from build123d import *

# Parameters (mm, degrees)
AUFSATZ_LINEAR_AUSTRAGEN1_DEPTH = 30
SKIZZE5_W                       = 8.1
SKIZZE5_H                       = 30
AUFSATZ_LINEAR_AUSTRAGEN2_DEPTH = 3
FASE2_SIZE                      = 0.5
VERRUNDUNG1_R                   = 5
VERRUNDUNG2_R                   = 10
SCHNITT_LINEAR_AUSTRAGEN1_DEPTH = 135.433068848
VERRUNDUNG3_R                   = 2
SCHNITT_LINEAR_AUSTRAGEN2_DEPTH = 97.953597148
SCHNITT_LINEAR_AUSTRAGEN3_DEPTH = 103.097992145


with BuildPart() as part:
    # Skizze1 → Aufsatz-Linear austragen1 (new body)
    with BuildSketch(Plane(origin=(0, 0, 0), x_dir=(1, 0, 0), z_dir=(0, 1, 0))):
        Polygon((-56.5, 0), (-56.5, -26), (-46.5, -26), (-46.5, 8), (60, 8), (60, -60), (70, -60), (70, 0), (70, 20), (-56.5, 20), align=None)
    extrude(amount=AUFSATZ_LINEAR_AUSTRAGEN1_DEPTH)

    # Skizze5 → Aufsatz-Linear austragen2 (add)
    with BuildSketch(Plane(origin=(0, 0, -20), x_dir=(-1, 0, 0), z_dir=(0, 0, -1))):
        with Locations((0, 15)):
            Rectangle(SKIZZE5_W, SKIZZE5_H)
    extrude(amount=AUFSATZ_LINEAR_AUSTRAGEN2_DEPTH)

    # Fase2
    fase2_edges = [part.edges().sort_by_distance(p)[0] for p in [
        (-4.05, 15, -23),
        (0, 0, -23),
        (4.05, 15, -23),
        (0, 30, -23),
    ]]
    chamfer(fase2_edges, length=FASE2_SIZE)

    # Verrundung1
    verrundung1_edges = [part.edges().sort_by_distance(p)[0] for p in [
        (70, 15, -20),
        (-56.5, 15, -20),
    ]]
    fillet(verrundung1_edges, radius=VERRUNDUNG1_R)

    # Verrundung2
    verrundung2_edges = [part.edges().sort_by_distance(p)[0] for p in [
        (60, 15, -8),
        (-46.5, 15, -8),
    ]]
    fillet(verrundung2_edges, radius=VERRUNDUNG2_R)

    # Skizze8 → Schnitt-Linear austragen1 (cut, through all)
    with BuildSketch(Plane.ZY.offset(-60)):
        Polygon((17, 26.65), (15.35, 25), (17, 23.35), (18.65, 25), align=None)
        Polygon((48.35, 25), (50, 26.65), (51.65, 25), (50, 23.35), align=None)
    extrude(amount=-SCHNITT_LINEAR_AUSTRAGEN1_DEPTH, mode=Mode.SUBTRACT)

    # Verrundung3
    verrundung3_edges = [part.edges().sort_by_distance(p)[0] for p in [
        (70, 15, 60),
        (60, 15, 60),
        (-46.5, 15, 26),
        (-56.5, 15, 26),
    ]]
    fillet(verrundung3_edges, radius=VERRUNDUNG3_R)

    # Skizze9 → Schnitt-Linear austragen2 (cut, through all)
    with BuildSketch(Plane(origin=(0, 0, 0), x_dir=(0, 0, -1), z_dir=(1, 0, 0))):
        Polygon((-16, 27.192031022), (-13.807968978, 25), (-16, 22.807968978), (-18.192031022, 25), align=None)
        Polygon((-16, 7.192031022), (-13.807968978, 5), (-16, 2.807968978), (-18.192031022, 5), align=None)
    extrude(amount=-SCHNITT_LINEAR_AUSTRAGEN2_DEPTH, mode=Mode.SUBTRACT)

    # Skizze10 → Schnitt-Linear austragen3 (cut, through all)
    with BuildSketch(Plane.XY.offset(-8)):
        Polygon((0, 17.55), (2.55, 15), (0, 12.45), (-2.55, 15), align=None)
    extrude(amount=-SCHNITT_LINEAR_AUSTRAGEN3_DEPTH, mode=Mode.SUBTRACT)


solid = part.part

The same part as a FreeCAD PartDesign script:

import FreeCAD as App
import Part
import Sketcher

V = App.Vector
Q = App.Units.Quantity


def edges_at(feature, points):
    """Names of the edges that pass closest to the given points."""
    edges = feature.Shape.Edges
    near = lambda p: min(range(len(edges)), key=lambda i: edges[i].distToShape(Part.Vertex(*p))[0])
    return sorted({f"Edge{near(p) + 1}" for p in points})

doc = App.newDocument("Part")
body = doc.addObject("PartDesign::Body", "Body")

sketch1 = body.newObject("Sketcher::SketchObject", "Sketch")
sketch1.AttachmentSupport = (doc.getObject("XZ_Plane"), [""])
sketch1.MapMode = "FlatFace"
sketch1.addGeometry([
    Part.LineSegment(V(-56, 26, 0), V(-46, 26, 0)),
    Part.LineSegment(V(-46, 26, 0), V(-46, -8, 0)),
    Part.LineSegment(V(-46, -8, 0), V(60, -8, 0)),
    Part.LineSegment(V(60, -8, 0), V(60, 60, 0)),
    Part.LineSegment(V(60, 60, 0), V(70, 60, 0)),
    Part.LineSegment(V(70, 60, 0), V(70, -20, 0)),
    Part.LineSegment(V(70, -20, 0), V(-56, -20, 0)),
    Part.LineSegment(V(-56, -20, 0), V(-56, 26, 0)),
], False)
sketch1.addConstraint([
    Sketcher.Constraint("Coincident", 0, 2, 1, 1),
    Sketcher.Constraint("Coincident", 1, 2, 2, 1),
    Sketcher.Constraint("Coincident", 2, 2, 3, 1),
    Sketcher.Constraint("Coincident", 3, 2, 4, 1),
    Sketcher.Constraint("Coincident", 4, 2, 5, 1),
    Sketcher.Constraint("Coincident", 5, 2, 6, 1),
    Sketcher.Constraint("Coincident", 6, 2, 7, 1),
    Sketcher.Constraint("Coincident", 7, 2, 0, 1),
    Sketcher.Constraint("Horizontal", 0),
    Sketcher.Constraint("Vertical", 1),
    Sketcher.Constraint("Horizontal", 2),
    Sketcher.Constraint("Vertical", 3),
    Sketcher.Constraint("Horizontal", 4),
    Sketcher.Constraint("Vertical", 5),
    Sketcher.Constraint("Horizontal", 6),
    Sketcher.Constraint("Vertical", 7),
    Sketcher.Constraint("Equal", 0, 4),
    Sketcher.Constraint("DistanceX", 0, 1, 0, 2, Q("10 mm")),
    Sketcher.Constraint("DistanceY", 1, 2, 1, 1, Q("34 mm")),
    Sketcher.Constraint("DistanceY", 3, 1, 3, 2, Q("68 mm")),
    Sketcher.Constraint("DistanceY", 5, 2, 5, 1, Q("80 mm")),
    Sketcher.Constraint("DistanceX", 2, 1, 2, 2, Q("106.5 mm")),
    Sketcher.Constraint("DistanceY", -1, 1, 0, 2, Q("26 mm")),
    Sketcher.Constraint("DistanceX", -1, 1, 2, 2, Q("60 mm")),
])
pad1 = body.newObject("PartDesign::Pad", "Pad")
pad1.Profile = sketch1
pad1.Length = 30
pad1.Reversed = True

sketch2 = body.newObject("Sketcher::SketchObject", "Sketch001")
sketch2.AttachmentSupport = (doc.getObject("XY_Plane"), [""])
sketch2.MapMode = "FlatFace"
sketch2.AttachmentOffset = App.Placement(V(0, 0, -20), App.Rotation())
sketch2.addGeometry([
    Part.LineSegment(V(4, 30, 0), V(4, 0, 0)),
    Part.LineSegment(V(4, 0, 0), V(-4, 0, 0)),
    Part.LineSegment(V(-4, 0, 0), V(-4, 30, 0)),
    Part.LineSegment(V(-4, 30, 0), V(4, 30, 0)),
], False)
sketch2.addConstraint([
    Sketcher.Constraint("Coincident", 0, 2, 1, 1),
    Sketcher.Constraint("Coincident", 1, 2, 2, 1),
    Sketcher.Constraint("Coincident", 2, 2, 3, 1),
    Sketcher.Constraint("Coincident", 3, 2, 0, 1),
    Sketcher.Constraint("Vertical", 0),
    Sketcher.Constraint("Horizontal", 1),
    Sketcher.Constraint("Vertical", 2),
    Sketcher.Constraint("Horizontal", 3),
    Sketcher.Constraint("Symmetric", 0, 2, 1, 2, -1, 1),
    Sketcher.Constraint("DistanceY", 0, 2, 0, 1, Q("30 mm")),
    Sketcher.Constraint("DistanceX", 1, 2, 1, 1, Q("8.1 mm")),
])
pad2 = body.newObject("PartDesign::Pad", "Pad001")
pad2.Profile = sketch2
pad2.Length = 3
pad2.Reversed = True
doc.recompute()

chamfer = body.newObject("PartDesign::Chamfer", "Chamfer")
chamfer.Base = (pad2, edges_at(pad2, [
    (-4.05, 15, -23),
    (0, 0, -23),
    (4.05, 15, -23),
    (0, 30, -23),
]))
chamfer.Size = 0.5
doc.recompute()

fillet = body.newObject("PartDesign::Fillet", "Fillet")
fillet.Base = (chamfer, edges_at(chamfer, [(70, 15, -20), (-56.5, 15, -20)]))
fillet.Radius = 5
doc.recompute()

fillet2 = body.newObject("PartDesign::Fillet", "Fillet001")
fillet2.Base = (fillet, edges_at(fillet, [(60, 15, -8), (-46.5, 15, -8)]))
fillet2.Radius = 10

sketch3 = body.newObject("Sketcher::SketchObject", "Sketch002")
sketch3.AttachmentSupport = (doc.getObject("YZ_Plane"), [""])
sketch3.MapMode = "FlatFace"
sketch3.AttachmentOffset = App.Placement(V(0, 0, 60), App.Rotation())
sketch3.addGeometry([
    Part.LineSegment(V(26.6, 17, 0), V(25, 15.3, 0)),
    Part.LineSegment(V(25, 15.3, 0), V(23.4, 17, 0)),
    Part.LineSegment(V(23.4, 17, 0), V(25, 18.6, 0)),
    Part.LineSegment(V(25, 18.6, 0), V(26.6, 17, 0)),
    Part.LineSegment(V(26.6, 50, 0), V(25, 48.4, 0)),
    Part.LineSegment(V(25, 48.4, 0), V(23.4, 50, 0)),
    Part.LineSegment(V(23.4, 50, 0), V(25, 51.6, 0)),
    Part.LineSegment(V(25, 51.6, 0), V(26.6, 50, 0)),
], False)
sketch3.addConstraint([
    Sketcher.Constraint("Coincident", 0, 2, 1, 1),
    Sketcher.Constraint("Coincident", 1, 2, 2, 1),
    Sketcher.Constraint("Coincident", 2, 2, 3, 1),
    Sketcher.Constraint("Coincident", 3, 2, 0, 1),
    Sketcher.Constraint("Coincident", 4, 2, 5, 1),
    Sketcher.Constraint("Coincident", 5, 2, 6, 1),
    Sketcher.Constraint("Coincident", 6, 2, 7, 1),
    Sketcher.Constraint("Coincident", 7, 2, 4, 1),
    Sketcher.Constraint("Perpendicular", 0, 1),
    Sketcher.Constraint("Perpendicular", 1, 2),
    Sketcher.Constraint("Perpendicular", 2, 3),
    Sketcher.Constraint("Perpendicular", 3, 4),
    Sketcher.Constraint("Perpendicular", 4, 5),
    Sketcher.Constraint("Perpendicular", 5, 6),
    Sketcher.Constraint("Perpendicular", 6, 7),
    Sketcher.Constraint("Horizontal", 1, 2, 3, 2),
    Sketcher.Constraint("Horizontal", 5, 2, 7, 2),
    Sketcher.Constraint("Vertical", 0, 2, 2, 2),
    Sketcher.Constraint("Vertical", 2, 2, 4, 2),
    Sketcher.Constraint("Vertical", 1, 2, 5, 2),
    Sketcher.Constraint("DistanceX", -1, 1, 0, 2, Q("25 mm")),
    Sketcher.Constraint("DistanceY", -1, 1, 1, 2, Q("17 mm")),
    Sketcher.Constraint("DistanceY", -1, 1, 5, 2, Q("50 mm")),
    Sketcher.Constraint("DistanceY", 0, 2, 2, 2, Q("3.3 mm")),
])
pocket1 = body.newObject("PartDesign::Pocket", "Pocket")
pocket1.Profile = sketch3
pocket1.Type = "ThroughAll"
pocket1.Reversed = True
doc.recompute()

fillet3 = body.newObject("PartDesign::Fillet", "Fillet002")
fillet3.Base = (pocket1, edges_at(pocket1, [
    (70, 15, 60),
    (60, 15, 60),
    (-46.5, 15, 26),
    (-56.5, 15, 26),
]))
fillet3.Radius = 2

sketch4 = body.newObject("Sketcher::SketchObject", "Sketch003")
sketch4.AttachmentSupport = (doc.getObject("YZ_Plane"), [""])
sketch4.MapMode = "FlatFace"
sketch4.addGeometry([
    Part.LineSegment(V(25, 13.8, 0), V(27.2, 16, 0)),
    Part.LineSegment(V(27.2, 16, 0), V(25, 18.2, 0)),
    Part.LineSegment(V(25, 18.2, 0), V(22.8, 16, 0)),
    Part.LineSegment(V(22.8, 16, 0), V(25, 13.8, 0)),
    Part.LineSegment(V(5, 13.8, 0), V(7.2, 16, 0)),
    Part.LineSegment(V(7.2, 16, 0), V(5, 18.2, 0)),
    Part.LineSegment(V(5, 18.2, 0), V(2.8, 16, 0)),
    Part.LineSegment(V(2.8, 16, 0), V(5, 13.8, 0)),
], False)
sketch4.addConstraint([
    Sketcher.Constraint("Coincident", 0, 2, 1, 1),
    Sketcher.Constraint("Coincident", 1, 2, 2, 1),
    Sketcher.Constraint("Coincident", 2, 2, 3, 1),
    Sketcher.Constraint("Coincident", 3, 2, 0, 1),
    Sketcher.Constraint("Coincident", 4, 2, 5, 1),
    Sketcher.Constraint("Coincident", 5, 2, 6, 1),
    Sketcher.Constraint("Coincident", 6, 2, 7, 1),
    Sketcher.Constraint("Coincident", 7, 2, 4, 1),
    Sketcher.Constraint("Perpendicular", 0, 1),
    Sketcher.Constraint("Perpendicular", 1, 2),
    Sketcher.Constraint("Perpendicular", 2, 3),
    Sketcher.Constraint("Perpendicular", 3, 4),
    Sketcher.Constraint("Perpendicular", 4, 5),
    Sketcher.Constraint("Perpendicular", 5, 6),
    Sketcher.Constraint("Perpendicular", 6, 7),
    Sketcher.Constraint("Horizontal", 0, 2, 2, 2),
    Sketcher.Constraint("Horizontal", 2, 2, 4, 2),
    Sketcher.Constraint("Horizontal", 1, 2, 5, 2),
    Sketcher.Constraint("Horizontal", 4, 2, 6, 2),
    Sketcher.Constraint("Vertical", 1, 2, 3, 2),
    Sketcher.Constraint("DistanceY", -1, 1, 0, 2, Q("16 mm")),
    Sketcher.Constraint("DistanceX", -1, 1, 1, 2, Q("25 mm")),
    Sketcher.Constraint("DistanceX", -1, 1, 5, 2, Q("5 mm")),
    Sketcher.Constraint("Distance", 0, Q("3.1 mm")),
])
pocket2 = body.newObject("PartDesign::Pocket", "Pocket001")
pocket2.Profile = sketch4
pocket2.Type = "ThroughAll"

sketch5 = body.newObject("Sketcher::SketchObject", "Sketch004")
sketch5.AttachmentSupport = (doc.getObject("XY_Plane"), [""])
sketch5.MapMode = "FlatFace"
sketch5.AttachmentOffset = App.Placement(V(0, 0, -8), App.Rotation())
sketch5.addGeometry([
    Part.LineSegment(V(2.5, 15, 0), V(0, 17.6, 0)),
    Part.LineSegment(V(0, 17.6, 0), V(-2.5, 15, 0)),
    Part.LineSegment(V(-2.5, 15, 0), V(0, 12.4, 0)),
    Part.LineSegment(V(0, 12.4, 0), V(2.5, 15, 0)),
], False)
sketch5.addConstraint([
    Sketcher.Constraint("Coincident", 0, 2, 1, 1),
    Sketcher.Constraint("Coincident", 1, 2, 2, 1),
    Sketcher.Constraint("Coincident", 2, 2, 3, 1),
    Sketcher.Constraint("Coincident", 3, 2, 0, 1),
    Sketcher.Constraint("Symmetric", 1, 2, 3, 2, -2),
    Sketcher.Constraint("PointOnObject", 0, 2, -2),
    Sketcher.Constraint("PointOnObject", 2, 2, -2),
    Sketcher.Constraint("Perpendicular", 0, 1),
    Sketcher.Constraint("Perpendicular", 1, 2),
    Sketcher.Constraint("DistanceY", -1, 1, 1, 2, Q("15 mm")),
    Sketcher.Constraint("DistanceY", 2, 2, 0, 2, Q("5.1 mm")),
])
pocket3 = body.newObject("PartDesign::Pocket", "Pocket002")
pocket3.Profile = sketch5
pocket3.Type = "ThroughAll"

doc.recompute()
